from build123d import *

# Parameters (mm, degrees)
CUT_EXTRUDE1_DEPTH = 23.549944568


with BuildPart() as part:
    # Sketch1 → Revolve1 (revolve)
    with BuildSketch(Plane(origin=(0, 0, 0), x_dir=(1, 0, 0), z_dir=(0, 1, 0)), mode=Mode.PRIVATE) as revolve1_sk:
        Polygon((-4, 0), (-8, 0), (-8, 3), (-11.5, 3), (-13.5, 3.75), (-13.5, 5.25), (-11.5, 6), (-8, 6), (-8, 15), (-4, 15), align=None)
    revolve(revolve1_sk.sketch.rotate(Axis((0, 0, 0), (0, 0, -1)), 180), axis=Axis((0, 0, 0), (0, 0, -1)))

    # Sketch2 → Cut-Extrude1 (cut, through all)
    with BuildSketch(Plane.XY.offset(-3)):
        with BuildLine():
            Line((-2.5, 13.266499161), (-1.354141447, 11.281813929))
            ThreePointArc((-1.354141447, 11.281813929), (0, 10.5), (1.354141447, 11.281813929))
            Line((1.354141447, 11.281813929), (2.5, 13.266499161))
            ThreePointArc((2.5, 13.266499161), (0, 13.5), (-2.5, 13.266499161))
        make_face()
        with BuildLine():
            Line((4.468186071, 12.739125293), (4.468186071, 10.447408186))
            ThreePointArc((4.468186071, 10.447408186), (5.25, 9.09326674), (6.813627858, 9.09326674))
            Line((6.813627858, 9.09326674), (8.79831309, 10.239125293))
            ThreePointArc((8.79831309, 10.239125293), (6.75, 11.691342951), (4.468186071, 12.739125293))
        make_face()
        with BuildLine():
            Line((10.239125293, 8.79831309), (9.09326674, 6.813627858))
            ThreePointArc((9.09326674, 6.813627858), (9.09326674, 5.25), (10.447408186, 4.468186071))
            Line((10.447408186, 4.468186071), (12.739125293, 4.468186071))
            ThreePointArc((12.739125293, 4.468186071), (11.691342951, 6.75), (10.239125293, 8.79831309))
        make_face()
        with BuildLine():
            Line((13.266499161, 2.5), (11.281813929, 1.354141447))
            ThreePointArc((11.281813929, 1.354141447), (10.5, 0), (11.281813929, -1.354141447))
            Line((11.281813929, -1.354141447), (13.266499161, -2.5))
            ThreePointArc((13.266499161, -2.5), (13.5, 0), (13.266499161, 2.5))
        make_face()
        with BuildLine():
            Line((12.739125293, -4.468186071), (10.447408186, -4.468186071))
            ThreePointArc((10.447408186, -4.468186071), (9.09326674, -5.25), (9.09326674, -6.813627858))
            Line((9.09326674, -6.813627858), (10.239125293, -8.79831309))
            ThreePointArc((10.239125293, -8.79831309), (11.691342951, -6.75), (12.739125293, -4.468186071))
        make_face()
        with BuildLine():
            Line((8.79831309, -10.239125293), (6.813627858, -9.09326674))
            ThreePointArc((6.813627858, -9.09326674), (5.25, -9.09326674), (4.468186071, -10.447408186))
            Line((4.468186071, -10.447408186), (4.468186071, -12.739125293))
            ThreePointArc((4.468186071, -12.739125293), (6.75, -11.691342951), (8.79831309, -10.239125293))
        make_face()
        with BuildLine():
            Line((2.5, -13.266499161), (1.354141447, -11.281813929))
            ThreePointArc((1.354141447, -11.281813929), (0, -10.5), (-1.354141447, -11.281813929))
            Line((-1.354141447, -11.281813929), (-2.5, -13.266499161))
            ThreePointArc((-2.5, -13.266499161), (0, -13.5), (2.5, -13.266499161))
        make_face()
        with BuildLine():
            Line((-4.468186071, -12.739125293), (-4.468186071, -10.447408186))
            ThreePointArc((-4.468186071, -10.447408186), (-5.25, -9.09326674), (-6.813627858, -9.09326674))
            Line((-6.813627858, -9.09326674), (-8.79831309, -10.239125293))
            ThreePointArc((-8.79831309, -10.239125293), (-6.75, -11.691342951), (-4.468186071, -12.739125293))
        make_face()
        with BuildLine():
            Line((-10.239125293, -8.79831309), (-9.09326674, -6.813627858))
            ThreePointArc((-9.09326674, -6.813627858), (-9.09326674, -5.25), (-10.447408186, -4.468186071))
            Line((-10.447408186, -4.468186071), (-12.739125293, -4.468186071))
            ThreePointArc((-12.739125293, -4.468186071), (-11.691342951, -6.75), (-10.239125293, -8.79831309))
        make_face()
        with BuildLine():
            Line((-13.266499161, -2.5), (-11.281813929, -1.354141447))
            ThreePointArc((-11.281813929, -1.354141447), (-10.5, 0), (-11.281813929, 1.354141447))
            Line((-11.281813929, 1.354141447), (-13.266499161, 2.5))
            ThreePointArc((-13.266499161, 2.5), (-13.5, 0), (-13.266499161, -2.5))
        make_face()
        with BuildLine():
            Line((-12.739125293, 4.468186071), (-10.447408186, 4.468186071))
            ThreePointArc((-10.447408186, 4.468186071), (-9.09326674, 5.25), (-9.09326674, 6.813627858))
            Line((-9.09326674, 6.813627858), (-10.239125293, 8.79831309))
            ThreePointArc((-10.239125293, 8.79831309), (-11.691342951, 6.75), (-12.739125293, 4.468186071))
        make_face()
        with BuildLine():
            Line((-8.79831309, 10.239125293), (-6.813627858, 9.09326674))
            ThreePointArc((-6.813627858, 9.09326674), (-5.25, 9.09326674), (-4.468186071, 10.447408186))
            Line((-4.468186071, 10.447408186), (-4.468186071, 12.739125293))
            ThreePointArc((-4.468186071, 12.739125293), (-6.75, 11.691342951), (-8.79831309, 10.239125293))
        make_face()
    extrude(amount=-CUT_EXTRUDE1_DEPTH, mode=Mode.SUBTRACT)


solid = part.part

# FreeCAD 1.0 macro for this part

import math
import FreeCAD as App
import Part
import Sketcher
from FreeCAD import Vector
Q = App.Units.Quantity


def add_polygon(sketch, points):
    """Adds a closed chain of lines whose ends are joined by coincident constraints."""
    first, n = sketch.GeometryCount, len(points)
    for a, b in zip(points, points[1:] + points[:1]):
        sketch.addGeometry(Part.LineSegment(App.Vector(*a, 0), App.Vector(*b, 0)), False)
    for i in range(n):
        sketch.addConstraint(Sketcher.Constraint("Coincident", first + i, 2, first + (i + 1) % n, 1))

doc = App.newDocument("Part")
body = doc.addObject("PartDesign::Body", "Body")

# Sketch on XZ plane
sketch1 = doc.addObject("Sketcher::SketchObject", "Sketch")
body.addObject(sketch1)
sketch1.AttachmentSupport = (doc.XZ_Plane, [""])
sketch1.MapMode = "FlatFace"
add_polygon(sketch1, [(-8, 0), (-4, 0), (-4, -15), (-8, -15), (-8, -6), (-11.5, -6), (-13.5, -5.2), (-13.5, -3.8), (-11.5, -3), (-8, -3)])  # lines 0-9
sketch1.addConstraint(Sketcher.Constraint("Horizontal", 0))
sketch1.addConstraint(Sketcher.Constraint("Vertical", 1))
sketch1.addConstraint(Sketcher.Constraint("Horizontal", 2))
sketch1.addConstraint(Sketcher.Constraint("Vertical", 3))
sketch1.addConstraint(Sketcher.Constraint("Horizontal", 4))
sketch1.addConstraint(Sketcher.Constraint("Vertical", 6))
sketch1.addConstraint(Sketcher.Constraint("Horizontal", 8))
sketch1.addConstraint(Sketcher.Constraint("Vertical", 9))
sketch1.addConstraint(Sketcher.Constraint("PointOnObject", 0, 2, -1))
sketch1.addConstraint(Sketcher.Constraint("Vertical", 4, 2, 7, 2))
sketch1.addConstraint(Sketcher.Constraint("Vertical", 3, 2, 8, 2))
sketch1.addConstraint(Sketcher.Constraint("Equal", 5, 7))
sketch1.addConstraint(Sketcher.Constraint("DistanceX", 0, 1, 0, 2, Q("4 mm")))
sketch1.addConstraint(Sketcher.Constraint("DistanceY", 1, 2, 1, 1, Q("15 mm")))
sketch1.addConstraint(Sketcher.Constraint("DistanceY", 3, 1, 3, 2, Q("9 mm")))
sketch1.addConstraint(Sketcher.Constraint("DistanceY", 9, 1, 9, 2, Q("3 mm")))
sketch1.addConstraint(Sketcher.Constraint("DistanceX", 4, 2, 4, 1, Q("3.5 mm")))
sketch1.addConstraint(Sketcher.Constraint("DistanceY", 6, 1, 6, 2, Q("1.5 mm")))
sketch1.addConstraint(Sketcher.Constraint("DistanceX", 0, 2, -1, 1, Q("4 mm")))
sketch1.addConstraint(Sketcher.Constraint("DistanceX", 5, 2, 4, 2, Q("2 mm")))
revolution = doc.addObject("PartDesign::Revolution", "Revolution")
body.addObject(revolution)
revolution.Profile = sketch1
revolution.ReferenceAxis = (sketch1, ["V_Axis"])
revolution.Angle = 360

# Sketch on XY plane
sketch2 = doc.addObject("Sketcher::SketchObject", "Sketch001")
body.addObject(sketch2)
sketch2.AttachmentSupport = (doc.XY_Plane, [""])
sketch2.MapMode = "FlatFace"
sketch2.AttachmentOffset = App.Placement(Vector(0, 0, -3), App.Rotation())
sketch2.addGeometry(Part.LineSegment(Vector(-2.5, 13.3, 0), Vector(-1.4, 11.3, 0)), False)
sketch2.addGeometry(Part.ArcOfCircle(Part.Circle(Vector(0, 12.1, 0), Vector(0, 0, 1), 1.6), math.radians(-150), math.radians(-30)), False)
sketch2.addGeometry(Part.LineSegment(Vector(1.4, 11.3, 0), Vector(2.5, 13.3, 0)), False)
sketch2.addGeometry(Part.ArcOfCircle(Part.Circle(Vector(0, 0, 0), Vector(0, 0, 1), 13.5), math.radians(79), math.radians(101)), False)
sketch2.addGeometry(Part.LineSegment(Vector(4.5, 12.7, 0), Vector(4.5, 10.4, 0)), False)
sketch2.addGeometry(Part.ArcOfCircle(Part.Circle(Vector(6, 10.4, 0), Vector(0, 0, 1), 1.6), math.radians(-180), math.radians(-60)), False)
sketch2.addGeometry(Part.LineSegment(Vector(6.8, 9.1, 0), Vector(8.8, 10.2, 0)), False)
sketch2.addGeometry(Part.ArcOfCircle(Part.Circle(Vector(0, 0, 0), Vector(0, 0, 1), 13.5), math.radians(49), math.radians(71)), False)
sketch2.addGeometry(Part.LineSegment(Vector(10.2, 8.8, 0), Vector(9.1, 6.8, 0)), False)
sketch2.addGeometry(Part.ArcOfCircle(Part.Circle(Vector(10.4, 6, 0), Vector(0, 0, 1), 1.6), math.radians(150), math.radians(270)), False)
sketch2.addGeometry(Part.LineSegment(Vector(10.4, 4.5, 0), Vector(12.7, 4.5, 0)), False)
sketch2.addGeometry(Part.ArcOfCircle(Part.Circle(Vector(0, 0, 0), Vector(0, 0, 1), 13.5), math.radians(19), math.radians(41)), False)
sketch2.addGeometry(Part.LineSegment(Vector(13.3, 2.5, 0), Vector(11.3, 1.4, 0)), False)
sketch2.addGeometry(Part.ArcOfCircle(Part.Circle(Vector(12.1, 0, 0), Vector(0, 0, 1), 1.6), math.radians(120), math.radians(240)), False)
sketch2.addGeometry(Part.LineSegment(Vector(11.3, -1.4, 0), Vector(13.3, -2.5, 0)), False)
sketch2.addGeometry(Part.ArcOfCircle(Part.Circle(Vector(0, 0, 0), Vector(0, 0, 1), 13.5), math.radians(-11), math.radians(11)), False)
sketch2.addGeometry(Part.LineSegment(Vector(12.7, -4.5, 0), Vector(10.4, -4.5, 0)), False)
sketch2.addGeometry(Part.ArcOfCircle(Part.Circle(Vector(10.4, -6, 0), Vector(0, 0, 1), 1.6), math.radians(90), math.radians(210)), False)
sketch2.addGeometry(Part.LineSegment(Vector(9.1, -6.8, 0), Vector(10.2, -8.8, 0)), False)
sketch2.addGeometry(Part.ArcOfCircle(Part.Circle(Vector(0, 0, 0), Vector(0, 0, 1), 13.5), math.radians(-41), math.radians(-19)), False)
sketch2.addGeometry(Part.LineSegment(Vector(8.8, -10.2, 0), Vector(6.8, -9.1, 0)), False)
sketch2.addGeometry(Part.ArcOfCircle(Part.Circle(Vector(6, -10.4, 0), Vector(0, 0, 1), 1.6), math.radians(60), math.radians(180)), False)
sketch2.addGeometry(Part.LineSegment(Vector(4.5, -10.4, 0), Vector(4.5, -12.7, 0)), False)
sketch2.addGeometry(Part.ArcOfCircle(Part.Circle(Vector(0, 0, 0), Vector(0, 0, 1), 13.5), math.radians(-71), math.radians(-49)), False)
sketch2.addGeometry(Part.LineSegment(Vector(2.5, -13.3, 0), Vector(1.4, -11.3, 0)), False)
sketch2.addGeometry(Part.ArcOfCircle(Part.Circle(Vector(0, -12.1, 0), Vector(0, 0, 1), 1.6), math.radians(30), math.radians(150)), False)
sketch2.addGeometry(Part.LineSegment(Vector(-1.4, -11.3, 0), Vector(-2.5, -13.3, 0)), False)
sketch2.addGeometry(Part.ArcOfCircle(Part.Circle(Vector(0, 0, 0), Vector(0, 0, 1), 13.5), math.radians(-101), math.radians(-79)), False)
sketch2.addGeometry(Part.LineSegment(Vector(-4.5, -12.7, 0), Vector(-4.5, -10.4, 0)), False)
sketch2.addGeometry(Part.ArcOfCircle(Part.Circle(Vector(-6, -10.4, 0), Vector(0, 0, 1), 1.6), math.radians(0), math.radians(120)), False)
sketch2.addGeometry(Part.LineSegment(Vector(-6.8, -9.1, 0), Vector(-8.8, -10.2, 0)), False)
sketch2.addGeometry(Part.ArcOfCircle(Part.Circle(Vector(0, 0, 0), Vector(0, 0, 1), 13.5), math.radians(-131), math.radians(-109)), False)
sketch2.addGeometry(Part.LineSegment(Vector(-10.2, -8.8, 0), Vector(-9.1, -6.8, 0)), False)
sketch2.addGeometry(Part.ArcOfCircle(Part.Circle(Vector(-10.4, -6, 0), Vector(0, 0, 1), 1.6), math.radians(-30), math.radians(90)), False)
sketch2.addGeometry(Part.LineSegment(Vector(-10.4, -4.5, 0), Vector(-12.7, -4.5, 0)), False)
sketch2.addGeometry(Part.ArcOfCircle(Part.Circle(Vector(0, 0, 0), Vector(0, 0, 1), 13.5), math.radians(-161), math.radians(-139)), False)
sketch2.addGeometry(Part.LineSegment(Vector(-13.3, -2.5, 0), Vector(-11.3, -1.4, 0)), False)
sketch2.addGeometry(Part.ArcOfCircle(Part.Circle(Vector(-12.1, 0, 0), Vector(0, 0, 1), 1.6), math.radians(-60), math.radians(60)), False)
sketch2.addGeometry(Part.LineSegment(Vector(-11.3, 1.4, 0), Vector(-13.3, 2.5, 0)), False)
sketch2.addGeometry(Part.ArcOfCircle(Part.Circle(Vector(0, 0, 0), Vector(0, 0, 1), 13.5), math.radians(169), math.radians(191)), False)
sketch2.addGeometry(Part.LineSegment(Vector(-12.7, 4.5, 0), Vector(-10.4, 4.5, 0)), False)
sketch2.addGeometry(Part.ArcOfCircle(Part.Circle(Vector(-10.4, 6, 0), Vector(0, 0, 1), 1.6), math.radians(-90), math.radians(30)), False)
sketch2.addGeometry(Part.LineSegment(Vector(-9.1, 6.8, 0), Vector(-10.2, 8.8, 0)), False)
sketch2.addGeometry(Part.ArcOfCircle(Part.Circle(Vector(0, 0, 0), Vector(0, 0, 1), 13.5), math.radians(139), math.radians(161)), False)
sketch2.addGeometry(Part.LineSegment(Vector(-8.8, 10.2, 0), Vector(-6.8, 9.1, 0)), False)
sketch2.addGeometry(Part.ArcOfCircle(Part.Circle(Vector(-6, 10.4, 0), Vector(0, 0, 1), 1.6), math.radians(-120), math.radians(0)), False)
sketch2.addGeometry(Part.LineSegment(Vector(-4.5, 10.4, 0), Vector(-4.5, 12.7, 0)), False)
sketch2.addGeometry(Part.ArcOfCircle(Part.Circle(Vector(0, 0, 0), Vector(0, 0, 1), 13.5), math.radians(109), math.radians(131)), False)
sketch2.addConstraint(Sketcher.Constraint("Tangent", 0, 2, 1, 1))
sketch2.addConstraint(Sketcher.Constraint("Tangent", 1, 2, 2, 1))
sketch2.addConstraint(Sketcher.Constraint("Coincident", 2, 2, 3, 1))
sketch2.addConstraint(Sketcher.Constraint("Coincident", 3, 2, 0, 1))
sketch2.addConstraint(Sketcher.Constraint("Tangent", 4, 2, 5, 1))
sketch2.addConstraint(Sketcher.Constraint("Tangent", 5, 2, 6, 1))
sketch2.addConstraint(Sketcher.Constraint("Coincident", 6, 2, 7, 1))
sketch2.addConstraint(Sketcher.Constraint("Coincident", 7, 2, 4, 1))
sketch2.addConstraint(Sketcher.Constraint("Tangent", 8, 2, 9, 1))
sketch2.addConstraint(Sketcher.Constraint("Tangent", 9, 2, 10, 1))
sketch2.addConstraint(Sketcher.Constraint("Coincident", 10, 2, 11, 1))
sketch2.addConstraint(Sketcher.Constraint("Coincident", 11, 2, 8, 1))
sketch2.addConstraint(Sketcher.Constraint("Tangent", 12, 2, 13, 1))
sketch2.addConstraint(Sketcher.Constraint("Tangent", 13, 2, 14, 1))
sketch2.addConstraint(Sketcher.Constraint("Coincident", 14, 2, 15, 1))
sketch2.addConstraint(Sketcher.Constraint("Coincident", 15, 2, 12, 1))
sketch2.addConstraint(Sketcher.Constraint("Tangent", 16, 2, 17, 1))
sketch2.addConstraint(Sketcher.Constraint("Tangent", 17, 2, 18, 1))
sketch2.addConstraint(Sketcher.Constraint("Coincident", 18, 2, 19, 1))
sketch2.addConstraint(Sketcher.Constraint("Coincident", 19, 2, 16, 1))
sketch2.addConstraint(Sketcher.Constraint("Tangent", 20, 2, 21, 1))
sketch2.addConstraint(Sketcher.Constraint("Tangent", 21, 2, 22, 1))
sketch2.addConstraint(Sketcher.Constraint("Coincident", 22, 2, 23, 1))
sketch2.addConstraint(Sketcher.Constraint("Coincident", 23, 2, 20, 1))
sketch2.addConstraint(Sketcher.Constraint("Tangent", 24, 2, 25, 1))
sketch2.addConstraint(Sketcher.Constraint("Tangent", 25, 2, 26, 1))
sketch2.addConstraint(Sketcher.Constraint("Coincident", 26, 2, 27, 1))
sketch2.addConstraint(Sketcher.Constraint("Coincident", 27, 2, 24, 1))
sketch2.addConstraint(Sketcher.Constraint("Tangent", 28, 2, 29, 1))
sketch2.addConstraint(Sketcher.Constraint("Tangent", 29, 2, 30, 1))
sketch2.addConstraint(Sketcher.Constraint("Coincident", 30, 2, 31, 1))
sketch2.addConstraint(Sketcher.Constraint("Coincident", 31, 2, 28, 1))
sketch2.addConstraint(Sketcher.Constraint("Tangent", 32, 2, 33, 1))
sketch2.addConstraint(Sketcher.Constraint("Tangent", 33, 2, 34, 1))
sketch2.addConstraint(Sketcher.Constraint("Coincident", 34, 2, 35, 1))
sketch2.addConstraint(Sketcher.Constraint("Coincident", 35, 2, 32, 1))
sketch2.addConstraint(Sketcher.Constraint("Tangent", 36, 2, 37, 1))
sketch2.addConstraint(Sketcher.Constraint("Tangent", 37, 2, 38, 1))
sketch2.addConstraint(Sketcher.Constraint("Coincident", 38, 2, 39, 1))
sketch2.addConstraint(Sketcher.Constraint("Coincident", 39, 2, 36, 1))
sketch2.addConstraint(Sketcher.Constraint("Tangent", 40, 2, 41, 1))
sketch2.addConstraint(Sketcher.Constraint("Tangent", 41, 2, 42, 1))
sketch2.addConstraint(Sketcher.Constraint("Coincident", 42, 2, 43, 1))
sketch2.addConstraint(Sketcher.Constraint("Coincident", 43, 2, 40, 1))
sketch2.addConstraint(Sketcher.Constraint("Tangent", 44, 2, 45, 1))
sketch2.addConstraint(Sketcher.Constraint("Tangent", 45, 2, 46, 1))
sketch2.addConstraint(Sketcher.Constraint("Coincident", 46, 2, 47, 1))
sketch2.addConstraint(Sketcher.Constraint("Coincident", 47, 2, 44, 1))
sketch2.addConstraint(Sketcher.Constraint("Vertical", 4))
sketch2.addConstraint(Sketcher.Constraint("Horizontal", 10))
sketch2.addConstraint(Sketcher.Constraint("Horizontal", 16))
sketch2.addConstraint(Sketcher.Constraint("Vertical", 22))
sketch2.addConstraint(Sketcher.Constraint("Vertical", 28))
sketch2.addConstraint(Sketcher.Constraint("Horizontal", 34))
sketch2.addConstraint(Sketcher.Constraint("Horizontal", 40))
sketch2.addConstraint(Sketcher.Constraint("Vertical", 46))
sketch2.addConstraint(Sketcher.Constraint("Coincident", 3, 3, -1, 1))
sketch2.addConstraint(Sketcher.Constraint("Coincident", 7, 3, -1, 1))
sketch2.addConstraint(Sketcher.Constraint("Coincident", 11, 3, -1, 1))
sketch2.addConstraint(Sketcher.Constraint("Coincident", 15, 3, -1, 1))
sketch2.addConstraint(Sketcher.Constraint("Coincident", 19, 3, -1, 1))
sketch2.addConstraint(Sketcher.Constraint("Coincident", 23, 3, -1, 1))
sketch2.addConstraint(Sketcher.Constraint("Coincident", 27, 3, -1, 1))
sketch2.addConstraint(Sketcher.Constraint("Coincident", 31, 3, -1, 1))
sketch2.addConstraint(Sketcher.Constraint("Coincident", 35, 3, -1, 1))
sketch2.addConstraint(Sketcher.Constraint("Coincident", 39, 3, -1, 1))
sketch2.addConstraint(Sketcher.Constraint("Coincident", 43, 3, -1, 1))
sketch2.addConstraint(Sketcher.Constraint("Coincident", 47, 3, -1, 1))
sketch2.addConstraint(Sketcher.Constraint("Equal", 1, 5))
sketch2.addConstraint(Sketcher.Constraint("Equal", 3, 7))
sketch2.addConstraint(Sketcher.Constraint("Equal", 5, 9))
sketch2.addConstraint(Sketcher.Constraint("Equal", 7, 11))
sketch2.addConstraint(Sketcher.Constraint("Equal", 9, 13))
sketch2.addConstraint(Sketcher.Constraint("Equal", 11, 15))
sketch2.addConstraint(Sketcher.Constraint("Equal", 13, 17))
sketch2.addConstraint(Sketcher.Constraint("Equal", 15, 19))
sketch2.addConstraint(Sketcher.Constraint("Equal", 17, 21))
sketch2.addConstraint(Sketcher.Constraint("Equal", 19, 23))
sketch2.addConstraint(Sketcher.Constraint("Equal", 21, 25))
sketch2.addConstraint(Sketcher.Constraint("Equal", 23, 27))
sketch2.addConstraint(Sketcher.Constraint("Equal", 25, 29))
sketch2.addConstraint(Sketcher.Constraint("Equal", 27, 31))
sketch2.addConstraint(Sketcher.Constraint("Equal", 29, 33))
sketch2.addConstraint(Sketcher.Constraint("Equal", 31, 35))
sketch2.addConstraint(Sketcher.Constraint("Equal", 33, 37))
sketch2.addConstraint(Sketcher.Constraint("Equal", 35, 39))
sketch2.addConstraint(Sketcher.Constraint("Equal", 37, 41))
sketch2.addConstraint(Sketcher.Constraint("Equal", 39, 43))
sketch2.addConstraint(Sketcher.Constraint("Equal", 41, 45))
sketch2.addConstraint(Sketcher.Constraint("Equal", 43, 47))
sketch2.addConstraint(Sketcher.Constraint("Symmetric", 1, 3, 25, 3, -1, 1))
sketch2.addConstraint(Sketcher.Constraint("Symmetric", 5, 3, 29, 3, -1, 1))
sketch2.addConstraint(Sketcher.Constraint("Symmetric", 9, 3, 33, 3, -1, 1))
sketch2.addConstraint(Sketcher.Constraint("Symmetric", 13, 3, 37, 3, -1, 1))
sketch2.addConstraint(Sketcher.Constraint("Symmetric", 17, 3, 41, 3, -1, 1))
sketch2.addConstraint(Sketcher.Constraint("Symmetric", 21, 3, 45, 3, -1, 1))
sketch2.addConstraint(Sketcher.Constraint("Symmetric", 21, 3, 29, 3, -2))
sketch2.addConstraint(Sketcher.Constraint("Symmetric", 17, 3, 33, 3, -2))
sketch2.addConstraint(Sketcher.Constraint("Symmetric", 0, 2, 1, 2, -2))
sketch2.addConstraint(Sketcher.Constraint("Symmetric", 13, 2, 36, 2, -2))
sketch2.addConstraint(Sketcher.Constraint("Perpendicular", 0, 6))
sketch2.addConstraint(Sketcher.Constraint("Parallel", 2, 8))
sketch2.addConstraint(Sketcher.Constraint("Parallel", 6, 12))
sketch2.addConstraint(Sketcher.Constraint("Perpendicular", 8, 14))
sketch2.addConstraint(Sketcher.Constraint("Perpendicular", 12, 18))
sketch2.addConstraint(Sketcher.Constraint("Parallel", 14, 20))
sketch2.addConstraint(Sketcher.Constraint("Parallel", 18, 24))
sketch2.addConstraint(Sketcher.Constraint("Perpendicular", 20, 26))
sketch2.addConstraint(Sketcher.Constraint("Perpendicular", 24, 30))
sketch2.addConstraint(Sketcher.Constraint("Parallel", 26, 32))
sketch2.addConstraint(Sketcher.Constraint("Perpendicular", 32, 38))
sketch2.addConstraint(Sketcher.Constraint("Perpendicular", 36, 42))
sketch2.addConstraint(Sketcher.Constraint("Parallel", 38, 44))
sketch2.addConstraint(Sketcher.Constraint("Equal", 40, 4))
sketch2.addConstraint(Sketcher.Constraint("Equal", 2, 6))
sketch2.addConstraint(Sketcher.Constraint("Equal", 6, 8))
sketch2.addConstraint(Sketcher.Constraint("Equal", 8, 12))
sketch2.addConstraint(Sketcher.Constraint("Radius", 3, Q("13.5 mm")))
sketch2.addConstraint(Sketcher.Constraint("Angle", 0, Q("-60 deg")))
sketch2.addConstraint(Sketcher.Constraint("DistanceX", -1, 1, 2, 2, Q("2.5 mm")))
sketch2.addConstraint(Sketcher.Constraint("Radius", 1, Q("1.563628 mm")))
sketch2.addConstraint(Sketcher.Constraint("DistanceX", 10, 1, 10, 2, Q("2.291717 mm")))
pocket1 = doc.addObject("PartDesign::Pocket", "Pocket")
body.addObject(pocket1)
pocket1.Profile = sketch2
pocket1.Type = "ThroughAll"

doc.recompute()
